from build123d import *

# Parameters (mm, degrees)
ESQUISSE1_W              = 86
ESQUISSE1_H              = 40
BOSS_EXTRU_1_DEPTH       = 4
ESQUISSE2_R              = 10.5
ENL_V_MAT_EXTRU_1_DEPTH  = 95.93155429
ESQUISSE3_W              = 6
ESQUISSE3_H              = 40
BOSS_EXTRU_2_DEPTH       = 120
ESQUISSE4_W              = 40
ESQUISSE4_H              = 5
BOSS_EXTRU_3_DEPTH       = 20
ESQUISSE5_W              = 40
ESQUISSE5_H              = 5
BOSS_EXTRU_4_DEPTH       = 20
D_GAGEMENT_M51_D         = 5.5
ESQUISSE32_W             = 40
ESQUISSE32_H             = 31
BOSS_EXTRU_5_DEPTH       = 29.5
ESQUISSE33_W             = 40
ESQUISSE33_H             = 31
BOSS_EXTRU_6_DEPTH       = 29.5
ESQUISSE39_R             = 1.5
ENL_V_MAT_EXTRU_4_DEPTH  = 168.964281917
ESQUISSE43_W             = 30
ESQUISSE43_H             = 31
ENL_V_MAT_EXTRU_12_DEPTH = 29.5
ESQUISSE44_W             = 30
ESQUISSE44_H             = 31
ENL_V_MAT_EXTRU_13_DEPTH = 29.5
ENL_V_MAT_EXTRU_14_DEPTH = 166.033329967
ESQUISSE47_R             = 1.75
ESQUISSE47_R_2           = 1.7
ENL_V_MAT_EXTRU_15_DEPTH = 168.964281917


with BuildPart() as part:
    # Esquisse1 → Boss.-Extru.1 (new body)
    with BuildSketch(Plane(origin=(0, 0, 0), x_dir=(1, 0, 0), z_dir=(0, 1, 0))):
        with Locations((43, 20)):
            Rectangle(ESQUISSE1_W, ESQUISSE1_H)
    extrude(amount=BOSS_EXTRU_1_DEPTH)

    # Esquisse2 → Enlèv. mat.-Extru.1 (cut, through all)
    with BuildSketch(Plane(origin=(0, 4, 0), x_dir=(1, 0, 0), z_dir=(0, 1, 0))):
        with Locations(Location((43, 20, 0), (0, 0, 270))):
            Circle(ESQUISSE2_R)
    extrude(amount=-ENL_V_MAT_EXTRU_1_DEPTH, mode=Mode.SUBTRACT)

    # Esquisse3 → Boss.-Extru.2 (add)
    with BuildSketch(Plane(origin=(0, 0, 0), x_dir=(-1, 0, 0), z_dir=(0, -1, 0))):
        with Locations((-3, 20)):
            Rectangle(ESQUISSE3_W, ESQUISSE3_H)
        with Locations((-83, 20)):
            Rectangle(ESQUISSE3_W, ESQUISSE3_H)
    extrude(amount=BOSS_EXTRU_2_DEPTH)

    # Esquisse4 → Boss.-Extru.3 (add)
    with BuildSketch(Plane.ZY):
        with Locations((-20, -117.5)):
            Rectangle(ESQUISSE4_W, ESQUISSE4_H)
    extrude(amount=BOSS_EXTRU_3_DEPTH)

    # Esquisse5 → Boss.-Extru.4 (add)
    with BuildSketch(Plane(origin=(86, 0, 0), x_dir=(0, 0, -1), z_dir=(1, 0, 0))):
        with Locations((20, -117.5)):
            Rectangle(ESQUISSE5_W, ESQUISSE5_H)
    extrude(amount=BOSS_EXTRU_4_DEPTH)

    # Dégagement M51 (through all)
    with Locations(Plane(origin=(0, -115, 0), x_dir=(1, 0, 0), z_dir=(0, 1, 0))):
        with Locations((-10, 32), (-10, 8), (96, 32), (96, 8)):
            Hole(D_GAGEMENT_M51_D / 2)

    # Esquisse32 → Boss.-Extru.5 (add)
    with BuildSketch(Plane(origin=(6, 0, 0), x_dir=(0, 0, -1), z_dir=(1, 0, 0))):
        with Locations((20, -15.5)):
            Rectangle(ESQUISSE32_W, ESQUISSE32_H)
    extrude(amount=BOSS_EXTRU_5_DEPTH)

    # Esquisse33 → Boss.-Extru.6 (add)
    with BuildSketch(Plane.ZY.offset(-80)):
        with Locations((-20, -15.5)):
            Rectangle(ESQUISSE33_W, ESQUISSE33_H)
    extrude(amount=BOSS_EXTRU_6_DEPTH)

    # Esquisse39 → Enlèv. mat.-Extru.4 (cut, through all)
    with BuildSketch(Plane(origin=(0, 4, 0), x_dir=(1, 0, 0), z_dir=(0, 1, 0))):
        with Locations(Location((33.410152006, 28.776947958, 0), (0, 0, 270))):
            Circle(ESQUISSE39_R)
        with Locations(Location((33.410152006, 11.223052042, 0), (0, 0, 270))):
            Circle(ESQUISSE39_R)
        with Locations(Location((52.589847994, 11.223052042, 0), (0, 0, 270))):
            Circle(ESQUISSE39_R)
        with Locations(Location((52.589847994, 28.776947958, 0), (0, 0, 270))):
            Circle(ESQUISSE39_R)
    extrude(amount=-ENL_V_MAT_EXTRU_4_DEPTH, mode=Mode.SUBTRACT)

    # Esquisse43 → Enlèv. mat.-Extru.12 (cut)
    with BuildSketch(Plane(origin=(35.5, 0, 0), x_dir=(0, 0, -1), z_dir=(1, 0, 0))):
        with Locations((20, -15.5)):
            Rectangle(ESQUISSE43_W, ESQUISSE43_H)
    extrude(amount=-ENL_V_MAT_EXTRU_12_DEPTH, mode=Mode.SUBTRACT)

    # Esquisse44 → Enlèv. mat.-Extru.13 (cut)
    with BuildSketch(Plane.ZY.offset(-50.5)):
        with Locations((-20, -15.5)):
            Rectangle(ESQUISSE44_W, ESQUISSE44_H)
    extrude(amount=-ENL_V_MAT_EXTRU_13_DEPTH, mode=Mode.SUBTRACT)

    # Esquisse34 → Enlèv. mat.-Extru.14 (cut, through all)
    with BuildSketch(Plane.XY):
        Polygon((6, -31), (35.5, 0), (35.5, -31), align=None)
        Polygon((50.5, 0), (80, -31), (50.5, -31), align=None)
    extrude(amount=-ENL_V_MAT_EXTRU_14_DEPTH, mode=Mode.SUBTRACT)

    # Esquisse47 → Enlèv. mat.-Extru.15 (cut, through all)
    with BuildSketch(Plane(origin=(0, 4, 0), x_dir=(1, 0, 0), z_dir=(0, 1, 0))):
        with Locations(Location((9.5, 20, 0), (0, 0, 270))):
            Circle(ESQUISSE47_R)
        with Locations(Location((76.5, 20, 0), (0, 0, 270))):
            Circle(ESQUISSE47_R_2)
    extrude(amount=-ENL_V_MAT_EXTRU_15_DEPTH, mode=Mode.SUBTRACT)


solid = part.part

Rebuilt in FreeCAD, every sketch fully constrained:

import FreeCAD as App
import Part
import Sketcher
from FreeCAD import Vector
Q = App.Units.Quantity

doc = App.newDocument("Part")
body = doc.addObject("PartDesign::Body", "Body")

# Sketch on XZ plane
sketch1 = body.newObject("Sketcher::SketchObject", "Sketch")
sketch1.AttachmentSupport = (doc.getObject("XZ_Plane"), [""])
sketch1.MapMode = "FlatFace"
sketch1.addGeometry(Part.LineSegment(Vector(0, -40, 0), Vector(0, 0, 0)), False)
sketch1.addGeometry(Part.LineSegment(Vector(0, 0, 0), Vector(86, 0, 0)), False)
sketch1.addGeometry(Part.LineSegment(Vector(86, 0, 0), Vector(86, -40, 0)), False)
sketch1.addGeometry(Part.LineSegment(Vector(86, -40, 0), Vector(0, -40, 0)), False)
sketch1.addConstraint(Sketcher.Constraint("Coincident", 0, 2, 1, 1))
sketch1.addConstraint(Sketcher.Constraint("Coincident", 1, 2, 2, 1))
sketch1.addConstraint(Sketcher.Constraint("Coincident", 2, 2, 3, 1))
sketch1.addConstraint(Sketcher.Constraint("Coincident", 3, 2, 0, 1))
sketch1.addConstraint(Sketcher.Constraint("Vertical", 0))
sketch1.addConstraint(Sketcher.Constraint("Horizontal", 1))
sketch1.addConstraint(Sketcher.Constraint("Vertical", 2))
sketch1.addConstraint(Sketcher.Constraint("Horizontal", 3))
sketch1.addConstraint(Sketcher.Constraint("Coincident", 0, 2, -1, 1))
sketch1.addConstraint(Sketcher.Constraint("DistanceX", 1, 1, 1, 2, Q("86 mm")))
sketch1.addConstraint(Sketcher.Constraint("DistanceY", 0, 1, 0, 2, Q("40 mm")))
pad1 = body.newObject("PartDesign::Pad", "Pad")
pad1.Profile = sketch1
pad1.Length = 4
pad1.Reversed = True

# Sketch on XZ plane
sketch2 = body.newObject("Sketcher::SketchObject", "Sketch001")
sketch2.AttachmentSupport = (doc.getObject("XZ_Plane"), [""])
sketch2.MapMode = "FlatFace"
sketch2.AttachmentOffset = App.Placement(Vector(0, 0, -4), App.Rotation())
sketch2.addGeometry(Part.Circle(Vector(43, -20, 0), Vector(0, 0, 1), 10), False)
sketch2.addConstraint(Sketcher.Constraint("Diameter", 0, Q("21 mm")))
sketch2.addConstraint(Sketcher.Constraint("DistanceX", -1, 1, 0, 3, Q("43 mm")))
sketch2.addConstraint(Sketcher.Constraint("DistanceY", 0, 3, -1, 1, Q("20 mm")))
pocket1 = body.newObject("PartDesign::Pocket", "Pocket")
pocket1.Profile = sketch2
pocket1.Type = "ThroughAll"
pocket1.Reversed = True

# Sketch on XZ plane
sketch3 = body.newObject("Sketcher::SketchObject", "Sketch002")
sketch3.AttachmentSupport = (doc.getObject("XZ_Plane"), [""])
sketch3.MapMode = "FlatFace"
sketch3.addGeometry(Part.LineSegment(Vector(6, -40, 0), Vector(6, 0, 0)), False)
sketch3.addGeometry(Part.LineSegment(Vector(6, 0, 0), Vector(0, 0, 0)), False)
sketch3.addGeometry(Part.LineSegment(Vector(0, 0, 0), Vector(0, -40, 0)), False)
sketch3.addGeometry(Part.LineSegment(Vector(0, -40, 0), Vector(6, -40, 0)), False)
sketch3.addGeometry(Part.LineSegment(Vector(86, -40, 0), Vector(86, 0, 0)), False)
sketch3.addGeometry(Part.LineSegment(Vector(86, 0, 0), Vector(80, 0, 0)), False)
sketch3.addGeometry(Part.LineSegment(Vector(80, 0, 0), Vector(80, -40, 0)), False)
sketch3.addGeometry(Part.LineSegment(Vector(80, -40, 0), Vector(86, -40, 0)), False)
sketch3.addConstraint(Sketcher.Constraint("Coincident", 0, 2, 1, 1))
sketch3.addConstraint(Sketcher.Constraint("Coincident", 1, 2, 2, 1))
sketch3.addConstraint(Sketcher.Constraint("Coincident", 2, 2, 3, 1))
sketch3.addConstraint(Sketcher.Constraint("Coincident", 3, 2, 0, 1))
sketch3.addConstraint(Sketcher.Constraint("Coincident", 4, 2, 5, 1))
sketch3.addConstraint(Sketcher.Constraint("Coincident", 5, 2, 6, 1))
sketch3.addConstraint(Sketcher.Constraint("Coincident", 6, 2, 7, 1))
sketch3.addConstraint(Sketcher.Constraint("Coincident", 7, 2, 4, 1))
sketch3.addConstraint(Sketcher.Constraint("Vertical", 0))
sketch3.addConstraint(Sketcher.Constraint("Horizontal", 1))
sketch3.addConstraint(Sketcher.Constraint("Vertical", 2))
sketch3.addConstraint(Sketcher.Constraint("Horizontal", 3))
sketch3.addConstraint(Sketcher.Constraint("Vertical", 4))
sketch3.addConstraint(Sketcher.Constraint("Horizontal", 5))
sketch3.addConstraint(Sketcher.Constraint("Vertical", 6))
sketch3.addConstraint(Sketcher.Constraint("Horizontal", 7))
sketch3.addConstraint(Sketcher.Constraint("Coincident", 1, 2, -1, 1))
sketch3.addConstraint(Sketcher.Constraint("PointOnObject", 4, 2, -1))
sketch3.addConstraint(Sketcher.Constraint("Horizontal", 3, 2, 6, 2))
sketch3.addConstraint(Sketcher.Constraint("Equal", 3, 5))
sketch3.addConstraint(Sketcher.Constraint("DistanceX", 1, 2, 1, 1, Q("6 mm")))
sketch3.addConstraint(Sketcher.Constraint("DistanceY", 0, 1, 0, 2, Q("40 mm")))
sketch3.addConstraint(Sketcher.Constraint("DistanceX", -1, 1, 4, 2, Q("86 mm")))
pad2 = body.newObject("PartDesign::Pad", "Pad001")
pad2.Profile = sketch3
pad2.Length = 120

# Sketch on YZ plane
sketch4 = body.newObject("Sketcher::SketchObject", "Sketch003")
sketch4.AttachmentSupport = (doc.getObject("YZ_Plane"), [""])
sketch4.MapMode = "FlatFace"
sketch4.addGeometry(Part.LineSegment(Vector(-115, -40, 0), Vector(-120, -40, 0)), False)
sketch4.addGeometry(Part.LineSegment(Vector(-120, -40, 0), Vector(-120, 0, 0)), False)
sketch4.addGeometry(Part.LineSegment(Vector(-120, 0, 0), Vector(-115, 0, 0)), False)
sketch4.addGeometry(Part.LineSegment(Vector(-115, 0, 0), Vector(-115, -40, 0)), False)
sketch4.addConstraint(Sketcher.Constraint("Coincident", 0, 2, 1, 1))
sketch4.addConstraint(Sketcher.Constraint("Coincident", 1, 2, 2, 1))
sketch4.addConstraint(Sketcher.Constraint("Coincident", 2, 2, 3, 1))
sketch4.addConstraint(Sketcher.Constraint("Coincident", 3, 2, 0, 1))
sketch4.addConstraint(Sketcher.Constraint("Horizontal", 0))
sketch4.addConstraint(Sketcher.Constraint("Vertical", 1))
sketch4.addConstraint(Sketcher.Constraint("Horizontal", 2))
sketch4.addConstraint(Sketcher.Constraint("Vertical", 3))
sketch4.addConstraint(Sketcher.Constraint("PointOnObject", 1, 2, -1))
sketch4.addConstraint(Sketcher.Constraint("DistanceX", 0, 2, 0, 1, Q("5 mm")))
sketch4.addConstraint(Sketcher.Constraint("DistanceY", 1, 1, 1, 2, Q("40 mm")))
sketch4.addConstraint(Sketcher.Constraint("DistanceX", 0, 2, -1, 1, Q("120 mm")))
pad3 = body.newObject("PartDesign::Pad", "Pad002")
pad3.Profile = sketch4
pad3.Length = 20
pad3.Reversed = True

# Sketch on YZ plane
sketch5 = body.newObject("Sketcher::SketchObject", "Sketch004")
sketch5.AttachmentSupport = (doc.getObject("YZ_Plane"), [""])
sketch5.MapMode = "FlatFace"
sketch5.AttachmentOffset = App.Placement(Vector(0, 0, 86), App.Rotation())
sketch5.addGeometry(Part.LineSegment(Vector(-115, 0, 0), Vector(-120, 0, 0)), False)
sketch5.addGeometry(Part.LineSegment(Vector(-120, 0, 0), Vector(-120, -40, 0)), False)
sketch5.addGeometry(Part.LineSegment(Vector(-120, -40, 0), Vector(-115, -40, 0)), False)
sketch5.addGeometry(Part.LineSegment(Vector(-115, -40, 0), Vector(-115, 0, 0)), False)
sketch5.addConstraint(Sketcher.Constraint("Coincident", 0, 2, 1, 1))
sketch5.addConstraint(Sketcher.Constraint("Coincident", 1, 2, 2, 1))
sketch5.addConstraint(Sketcher.Constraint("Coincident", 2, 2, 3, 1))
sketch5.addConstraint(Sketcher.Constraint("Coincident", 3, 2, 0, 1))
sketch5.addConstraint(Sketcher.Constraint("Horizontal", 0))
sketch5.addConstraint(Sketcher.Constraint("Vertical", 1))
sketch5.addConstraint(Sketcher.Constraint("Horizontal", 2))
sketch5.addConstraint(Sketcher.Constraint("Vertical", 3))
sketch5.addConstraint(Sketcher.Constraint("PointOnObject", 0, 2, -1))
sketch5.addConstraint(Sketcher.Constraint("DistanceX", 0, 2, 0, 1, Q("5 mm")))
sketch5.addConstraint(Sketcher.Constraint("DistanceY", 1, 2, 1, 1, Q("40 mm")))
sketch5.addConstraint(Sketcher.Constraint("DistanceX", 0, 2, -1, 1, Q("120 mm")))
pad4 = body.newObject("PartDesign::Pad", "Pad003")
pad4.Profile = sketch5
pad4.Length = 20

# Sketch on XZ plane
sketch6 = body.newObject("Sketcher::SketchObject", "Sketch005")
sketch6.AttachmentSupport = (doc.getObject("XZ_Plane"), [""])
sketch6.MapMode = "FlatFace"
sketch6.AttachmentOffset = App.Placement(Vector(0, 0, 115), App.Rotation())
sketch6.addGeometry(Part.Circle(Vector(-10, -32, 0), Vector(0, 0, 1), 2.8), False)
sketch6.addGeometry(Part.Circle(Vector(-10, -8, 0), Vector(0, 0, 1), 2.8), False)
sketch6.addGeometry(Part.Circle(Vector(96, -32, 0), Vector(0, 0, 1), 2.8), False)
sketch6.addGeometry(Part.Circle(Vector(96, -8, 0), Vector(0, 0, 1), 2.8), False)
sketch6.addConstraint(Sketcher.Constraint("Equal", 0, 1))
sketch6.addConstraint(Sketcher.Constraint("Equal", 1, 2))
sketch6.addConstraint(Sketcher.Constraint("Equal", 2, 3))
sketch6.addConstraint(Sketcher.Constraint("Horizontal", 0, 3, 2, 3))
sketch6.addConstraint(Sketcher.Constraint("Horizontal", 1, 3, 3, 3))
sketch6.addConstraint(Sketcher.Constraint("Vertical", 0, 3, 1, 3))
sketch6.addConstraint(Sketcher.Constraint("Vertical", 2, 3, 3, 3))
sketch6.addConstraint(Sketcher.Constraint("Diameter", 0, Q("5.5 mm")))
sketch6.addConstraint(Sketcher.Constraint("DistanceX", 0, 3, -1, 1, Q("10 mm")))
sketch6.addConstraint(Sketcher.Constraint("DistanceY", 0, 3, -1, 1, Q("32 mm")))
sketch6.addConstraint(Sketcher.Constraint("DistanceY", 1, 3, -1, 1, Q("8 mm")))
sketch6.addConstraint(Sketcher.Constraint("DistanceX", -1, 1, 2, 3, Q("96 mm")))
doc.recompute()
hole = body.newObject("PartDesign::Hole", "Hole")
hole.Profile = sketch6
hole.ThreadType = "None"
hole.Diameter = 5.5
hole.DepthType = "ThroughAll"
hole.Reversed = True

# Sketch on YZ plane
sketch7 = body.newObject("Sketcher::SketchObject", "Sketch006")
sketch7.AttachmentSupport = (doc.getObject("YZ_Plane"), [""])
sketch7.MapMode = "FlatFace"
sketch7.AttachmentOffset = App.Placement(Vector(0, 0, 6), App.Rotation())
sketch7.addGeometry(Part.LineSegment(Vector(0, 0, 0), Vector(-31, 0, 0)), False)
sketch7.addGeometry(Part.LineSegment(Vector(-31, 0, 0), Vector(-31, -40, 0)), False)
sketch7.addGeometry(Part.LineSegment(Vector(-31, -40, 0), Vector(0, -40, 0)), False)
sketch7.addGeometry(Part.LineSegment(Vector(0, -40, 0), Vector(0, 0, 0)), False)
sketch7.addConstraint(Sketcher.Constraint("Coincident", 0, 2, 1, 1))
sketch7.addConstraint(Sketcher.Constraint("Coincident", 1, 2, 2, 1))
sketch7.addConstraint(Sketcher.Constraint("Coincident", 2, 2, 3, 1))
sketch7.addConstraint(Sketcher.Constraint("Coincident", 3, 2, 0, 1))
sketch7.addConstraint(Sketcher.Constraint("Horizontal", 0))
sketch7.addConstraint(Sketcher.Constraint("Vertical", 1))
sketch7.addConstraint(Sketcher.Constraint("Horizontal", 2))
sketch7.addConstraint(Sketcher.Constraint("Vertical", 3))
sketch7.addConstraint(Sketcher.Constraint("Coincident", 3, 2, -1, 1))
sketch7.addConstraint(Sketcher.Constraint("DistanceX", 0, 2, 0, 1, Q("31 mm")))
sketch7.addConstraint(Sketcher.Constraint("DistanceY", 1, 2, 1, 1, Q("40 mm")))
pad5 = body.newObject("PartDesign::Pad", "Pad004")
pad5.Profile = sketch7
pad5.Length = 29.5

# Sketch on YZ plane
sketch8 = body.newObject("Sketcher::SketchObject", "Sketch007")
sketch8.AttachmentSupport = (doc.getObject("YZ_Plane"), [""])
sketch8.MapMode = "FlatFace"
sketch8.AttachmentOffset = App.Placement(Vector(0, 0, 80), App.Rotation())
sketch8.addGeometry(Part.LineSegment(Vector(0, -40, 0), Vector(-31, -40, 0)), False)
sketch8.addGeometry(Part.LineSegment(Vector(-31, -40, 0), Vector(-31, 0, 0)), False)
sketch8.addGeometry(Part.LineSegment(Vector(-31, 0, 0), Vector(0, 0, 0)), False)
sketch8.addGeometry(Part.LineSegment(Vector(0, 0, 0), Vector(0, -40, 0)), False)
sketch8.addConstraint(Sketcher.Constraint("Coincident", 0, 2, 1, 1))
sketch8.addConstraint(Sketcher.Constraint("Coincident", 1, 2, 2, 1))
sketch8.addConstraint(Sketcher.Constraint("Coincident", 2, 2, 3, 1))
sketch8.addConstraint(Sketcher.Constraint("Coincident", 3, 2, 0, 1))
sketch8.addConstraint(Sketcher.Constraint("Horizontal", 0))
sketch8.addConstraint(Sketcher.Constraint("Vertical", 1))
sketch8.addConstraint(Sketcher.Constraint("Horizontal", 2))
sketch8.addConstraint(Sketcher.Constraint("Vertical", 3))
sketch8.addConstraint(Sketcher.Constraint("Coincident", 2, 2, -1, 1))
sketch8.addConstraint(Sketcher.Constraint("DistanceX", 0, 2, 0, 1, Q("31 mm")))
sketch8.addConstraint(Sketcher.Constraint("DistanceY", 1, 1, 1, 2, Q("40 mm")))
pad6 = body.newObject("PartDesign::Pad", "Pad005")
pad6.Profile = sketch8
pad6.Length = 29.5
pad6.Reversed = True

# Sketch on XZ plane
sketch9 = body.newObject("Sketcher::SketchObject", "Sketch008")
sketch9.AttachmentSupport = (doc.getObject("XZ_Plane"), [""])
sketch9.MapMode = "FlatFace"
sketch9.AttachmentOffset = App.Placement(Vector(0, 0, -4), App.Rotation())
sketch9.addGeometry(Part.Circle(Vector(33.4, -28.8, 0), Vector(0, 0, 1), 1.5), False)
sketch9.addGeometry(Part.Circle(Vector(33.4, -11.2, 0), Vector(0, 0, 1), 1.5), False)
sketch9.addGeometry(Part.Circle(Vector(52.6, -11.2, 0), Vector(0, 0, 1), 1.5), False)
sketch9.addGeometry(Part.Circle(Vector(52.6, -28.8, 0), Vector(0, 0, 1), 1.5), False)
sketch9.addConstraint(Sketcher.Constraint("Equal", 0, 1))
sketch9.addConstraint(Sketcher.Constraint("Equal", 1, 2))
sketch9.addConstraint(Sketcher.Constraint("Equal", 2, 3))
sketch9.addConstraint(Sketcher.Constraint("Horizontal", 1, 3, 2, 3))
sketch9.addConstraint(Sketcher.Constraint("Horizontal", 0, 3, 3, 3))
sketch9.addConstraint(Sketcher.Constraint("Vertical", 0, 3, 1, 3))
sketch9.addConstraint(Sketcher.Constraint("Vertical", 2, 3, 3, 3))
sketch9.addConstraint(Sketcher.Constraint("Diameter", 0, Q("3 mm")))
sketch9.addConstraint(Sketcher.Constraint("DistanceX", -1, 1, 0, 3, Q("33.410152 mm")))
sketch9.addConstraint(Sketcher.Constraint("DistanceY", 0, 3, -1, 1, Q("28.776948 mm")))
sketch9.addConstraint(Sketcher.Constraint("DistanceY", 1, 3, -1, 1, Q("11.223052 mm")))
sketch9.addConstraint(Sketcher.Constraint("DistanceX", -1, 1, 2, 3, Q("52.589848 mm")))
pocket2 = body.newObject("PartDesign::Pocket", "Pocket001")
pocket2.Profile = sketch9
pocket2.Type = "ThroughAll"
pocket2.Reversed = True

# Sketch on YZ plane
sketch10 = body.newObject("Sketcher::SketchObject", "Sketch009")
sketch10.AttachmentSupport = (doc.getObject("YZ_Plane"), [""])
sketch10.MapMode = "FlatFace"
sketch10.AttachmentOffset = App.Placement(Vector(0, 0, 35.5), App.Rotation())
sketch10.addGeometry(Part.LineSegment(Vector(0, -5, 0), Vector(-31, -5, 0)), False)
sketch10.addGeometry(Part.LineSegment(Vector(-31, -5, 0), Vector(-31, -35, 0)), False)
sketch10.addGeometry(Part.LineSegment(Vector(-31, -35, 0), Vector(0, -35, 0)), False)
sketch10.addGeometry(Part.LineSegment(Vector(0, -35, 0), Vector(0, -5, 0)), False)
sketch10.addConstraint(Sketcher.Constraint("Coincident", 0, 2, 1, 1))
sketch10.addConstraint(Sketcher.Constraint("Coincident", 1, 2, 2, 1))
sketch10.addConstraint(Sketcher.Constraint("Coincident", 2, 2, 3, 1))
sketch10.addConstraint(Sketcher.Constraint("Coincident", 3, 2, 0, 1))
sketch10.addConstraint(Sketcher.Constraint("Horizontal", 0))
sketch10.addConstraint(Sketcher.Constraint("Vertical", 1))
sketch10.addConstraint(Sketcher.Constraint("Horizontal", 2))
sketch10.addConstraint(Sketcher.Constraint("Vertical", 3))
sketch10.addConstraint(Sketcher.Constraint("PointOnObject", 2, 2, -2))
sketch10.addConstraint(Sketcher.Constraint("DistanceX", 0, 2, 0, 1, Q("31 mm")))
sketch10.addConstraint(Sketcher.Constraint("DistanceY", 1, 2, 1, 1, Q("30 mm")))
sketch10.addConstraint(Sketcher.Constraint("DistanceY", 0, 2, -1, 1, Q("5 mm")))
pocket3 = body.newObject("PartDesign::Pocket", "Pocket002")
pocket3.Profile = sketch10
pocket3.Length = 29.5

# Sketch on YZ plane
sketch11 = body.newObject("Sketcher::SketchObject", "Sketch010")
sketch11.AttachmentSupport = (doc.getObject("YZ_Plane"), [""])
sketch11.MapMode = "FlatFace"
sketch11.AttachmentOffset = App.Placement(Vector(0, 0, 50.5), App.Rotation())
sketch11.addGeometry(Part.LineSegment(Vector(0, -35, 0), Vector(-31, -35, 0)), False)
sketch11.addGeometry(Part.LineSegment(Vector(-31, -35, 0), Vector(-31, -5, 0)), False)
sketch11.addGeometry(Part.LineSegment(Vector(-31, -5, 0), Vector(0, -5, 0)), False)
sketch11.addGeometry(Part.LineSegment(Vector(0, -5, 0), Vector(0, -35, 0)), False)
sketch11.addConstraint(Sketcher.Constraint("Coincident", 0, 2, 1, 1))
sketch11.addConstraint(Sketcher.Constraint("Coincident", 1, 2, 2, 1))
sketch11.addConstraint(Sketcher.Constraint("Coincident", 2, 2, 3, 1))
sketch11.addConstraint(Sketcher.Constraint("Coincident", 3, 2, 0, 1))
sketch11.addConstraint(Sketcher.Constraint("Horizontal", 0))
sketch11.addConstraint(Sketcher.Constraint("Vertical", 1))
sketch11.addConstraint(Sketcher.Constraint("Horizontal", 2))
sketch11.addConstraint(Sketcher.Constraint("Vertical", 3))
sketch11.addConstraint(Sketcher.Constraint("PointOnObject", 2, 2, -2))
sketch11.addConstraint(Sketcher.Constraint("DistanceX", 0, 2, 0, 1, Q("31 mm")))
sketch11.addConstraint(Sketcher.Constraint("DistanceY", 1, 1, 1, 2, Q("30 mm")))
sketch11.addConstraint(Sketcher.Constraint("DistanceY", 0, 2, -1, 1, Q("35 mm")))
pocket4 = body.newObject("PartDesign::Pocket", "Pocket003")
pocket4.Profile = sketch11
pocket4.Length = 29.5
pocket4.Reversed = True

# Sketch on XY plane
sketch12 = body.newObject("Sketcher::SketchObject", "Sketch011")
sketch12.AttachmentSupport = (doc.getObject("XY_Plane"), [""])
sketch12.MapMode = "FlatFace"
sketch12.addGeometry(Part.LineSegment(Vector(36, 0, 0), Vector(6, -31, 0)), False)
sketch12.addGeometry(Part.LineSegment(Vector(6, -31, 0), Vector(36, -31, 0)), False)
sketch12.addGeometry(Part.LineSegment(Vector(36, -31, 0), Vector(36, 0, 0)), False)
sketch12.addGeometry(Part.LineSegment(Vector(80, -31, 0), Vector(50, 0, 0)), False)
sketch12.addGeometry(Part.LineSegment(Vector(50, 0, 0), Vector(50, -31, 0)), False)
sketch12.addGeometry(Part.LineSegment(Vector(50, -31, 0), Vector(80, -31, 0)), False)
sketch12.addConstraint(Sketcher.Constraint("Coincident", 0, 2, 1, 1))
sketch12.addConstraint(Sketcher.Constraint("Coincident", 1, 2, 2, 1))
sketch12.addConstraint(Sketcher.Constraint("Coincident", 2, 2, 0, 1))
sketch12.addConstraint(Sketcher.Constraint("Coincident", 3, 2, 4, 1))
sketch12.addConstraint(Sketcher.Constraint("Coincident", 4, 2, 5, 1))
sketch12.addConstraint(Sketcher.Constraint("Coincident", 5, 2, 3, 1))
sketch12.addConstraint(Sketcher.Constraint("Horizontal", 1))
sketch12.addConstraint(Sketcher.Constraint("Vertical", 2))
sketch12.addConstraint(Sketcher.Constraint("Vertical", 4))
sketch12.addConstraint(Sketcher.Constraint("Horizontal", 5))
sketch12.addConstraint(Sketcher.Constraint("PointOnObject", 2, 2, -1))
sketch12.addConstraint(Sketcher.Constraint("PointOnObject", 3, 2, -1))
sketch12.addConstraint(Sketcher.Constraint("Horizontal", 1, 2, 4, 2))
sketch12.addConstraint(Sketcher.Constraint("Equal", 1, 5))
sketch12.addConstraint(Sketcher.Constraint("DistanceY", 2, 1, 2, 2, Q("31 mm")))
sketch12.addConstraint(Sketcher.Constraint("DistanceX", 1, 1, 1, 2, Q("29.5 mm")))
sketch12.addConstraint(Sketcher.Constraint("DistanceX", -1, 1, 0, 2, Q("6 mm")))
sketch12.addConstraint(Sketcher.Constraint("DistanceX", -1, 1, 5, 2, Q("80 mm")))
pocket5 = body.newObject("PartDesign::Pocket", "Pocket004")
pocket5.Profile = sketch12
pocket5.Type = "ThroughAll"

# Sketch on XZ plane
sketch13 = body.newObject("Sketcher::SketchObject", "Sketch012")
sketch13.AttachmentSupport = (doc.getObject("XZ_Plane"), [""])
sketch13.MapMode = "FlatFace"
sketch13.AttachmentOffset = App.Placement(Vector(0, 0, -4), App.Rotation())
sketch13.addGeometry(Part.Circle(Vector(9.5, -20, 0), Vector(0, 0, 1), 1.8), False)
sketch13.addGeometry(Part.Circle(Vector(76.5, -20, 0), Vector(0, 0, 1), 1.7), False)
sketch13.addConstraint(Sketcher.Constraint("Horizontal", 0, 3, 1, 3))
sketch13.addConstraint(Sketcher.Constraint("Diameter", 0, Q("3.5 mm")))
sketch13.addConstraint(Sketcher.Constraint("Diameter", 1, Q("3.4 mm")))
sketch13.addConstraint(Sketcher.Constraint("DistanceY", 0, 3, -1, 1, Q("20 mm")))
sketch13.addConstraint(Sketcher.Constraint("DistanceX", 0, 3, 1, 3, Q("67 mm")))
sketch13.addConstraint(Sketcher.Constraint("DistanceX", -1, 1, 0, 3, Q("9.5 mm")))
pocket6 = body.newObject("PartDesign::Pocket", "Pocket005")
pocket6.Profile = sketch13
pocket6.Type = "ThroughAll"
pocket6.Reversed = True

doc.recompute()
